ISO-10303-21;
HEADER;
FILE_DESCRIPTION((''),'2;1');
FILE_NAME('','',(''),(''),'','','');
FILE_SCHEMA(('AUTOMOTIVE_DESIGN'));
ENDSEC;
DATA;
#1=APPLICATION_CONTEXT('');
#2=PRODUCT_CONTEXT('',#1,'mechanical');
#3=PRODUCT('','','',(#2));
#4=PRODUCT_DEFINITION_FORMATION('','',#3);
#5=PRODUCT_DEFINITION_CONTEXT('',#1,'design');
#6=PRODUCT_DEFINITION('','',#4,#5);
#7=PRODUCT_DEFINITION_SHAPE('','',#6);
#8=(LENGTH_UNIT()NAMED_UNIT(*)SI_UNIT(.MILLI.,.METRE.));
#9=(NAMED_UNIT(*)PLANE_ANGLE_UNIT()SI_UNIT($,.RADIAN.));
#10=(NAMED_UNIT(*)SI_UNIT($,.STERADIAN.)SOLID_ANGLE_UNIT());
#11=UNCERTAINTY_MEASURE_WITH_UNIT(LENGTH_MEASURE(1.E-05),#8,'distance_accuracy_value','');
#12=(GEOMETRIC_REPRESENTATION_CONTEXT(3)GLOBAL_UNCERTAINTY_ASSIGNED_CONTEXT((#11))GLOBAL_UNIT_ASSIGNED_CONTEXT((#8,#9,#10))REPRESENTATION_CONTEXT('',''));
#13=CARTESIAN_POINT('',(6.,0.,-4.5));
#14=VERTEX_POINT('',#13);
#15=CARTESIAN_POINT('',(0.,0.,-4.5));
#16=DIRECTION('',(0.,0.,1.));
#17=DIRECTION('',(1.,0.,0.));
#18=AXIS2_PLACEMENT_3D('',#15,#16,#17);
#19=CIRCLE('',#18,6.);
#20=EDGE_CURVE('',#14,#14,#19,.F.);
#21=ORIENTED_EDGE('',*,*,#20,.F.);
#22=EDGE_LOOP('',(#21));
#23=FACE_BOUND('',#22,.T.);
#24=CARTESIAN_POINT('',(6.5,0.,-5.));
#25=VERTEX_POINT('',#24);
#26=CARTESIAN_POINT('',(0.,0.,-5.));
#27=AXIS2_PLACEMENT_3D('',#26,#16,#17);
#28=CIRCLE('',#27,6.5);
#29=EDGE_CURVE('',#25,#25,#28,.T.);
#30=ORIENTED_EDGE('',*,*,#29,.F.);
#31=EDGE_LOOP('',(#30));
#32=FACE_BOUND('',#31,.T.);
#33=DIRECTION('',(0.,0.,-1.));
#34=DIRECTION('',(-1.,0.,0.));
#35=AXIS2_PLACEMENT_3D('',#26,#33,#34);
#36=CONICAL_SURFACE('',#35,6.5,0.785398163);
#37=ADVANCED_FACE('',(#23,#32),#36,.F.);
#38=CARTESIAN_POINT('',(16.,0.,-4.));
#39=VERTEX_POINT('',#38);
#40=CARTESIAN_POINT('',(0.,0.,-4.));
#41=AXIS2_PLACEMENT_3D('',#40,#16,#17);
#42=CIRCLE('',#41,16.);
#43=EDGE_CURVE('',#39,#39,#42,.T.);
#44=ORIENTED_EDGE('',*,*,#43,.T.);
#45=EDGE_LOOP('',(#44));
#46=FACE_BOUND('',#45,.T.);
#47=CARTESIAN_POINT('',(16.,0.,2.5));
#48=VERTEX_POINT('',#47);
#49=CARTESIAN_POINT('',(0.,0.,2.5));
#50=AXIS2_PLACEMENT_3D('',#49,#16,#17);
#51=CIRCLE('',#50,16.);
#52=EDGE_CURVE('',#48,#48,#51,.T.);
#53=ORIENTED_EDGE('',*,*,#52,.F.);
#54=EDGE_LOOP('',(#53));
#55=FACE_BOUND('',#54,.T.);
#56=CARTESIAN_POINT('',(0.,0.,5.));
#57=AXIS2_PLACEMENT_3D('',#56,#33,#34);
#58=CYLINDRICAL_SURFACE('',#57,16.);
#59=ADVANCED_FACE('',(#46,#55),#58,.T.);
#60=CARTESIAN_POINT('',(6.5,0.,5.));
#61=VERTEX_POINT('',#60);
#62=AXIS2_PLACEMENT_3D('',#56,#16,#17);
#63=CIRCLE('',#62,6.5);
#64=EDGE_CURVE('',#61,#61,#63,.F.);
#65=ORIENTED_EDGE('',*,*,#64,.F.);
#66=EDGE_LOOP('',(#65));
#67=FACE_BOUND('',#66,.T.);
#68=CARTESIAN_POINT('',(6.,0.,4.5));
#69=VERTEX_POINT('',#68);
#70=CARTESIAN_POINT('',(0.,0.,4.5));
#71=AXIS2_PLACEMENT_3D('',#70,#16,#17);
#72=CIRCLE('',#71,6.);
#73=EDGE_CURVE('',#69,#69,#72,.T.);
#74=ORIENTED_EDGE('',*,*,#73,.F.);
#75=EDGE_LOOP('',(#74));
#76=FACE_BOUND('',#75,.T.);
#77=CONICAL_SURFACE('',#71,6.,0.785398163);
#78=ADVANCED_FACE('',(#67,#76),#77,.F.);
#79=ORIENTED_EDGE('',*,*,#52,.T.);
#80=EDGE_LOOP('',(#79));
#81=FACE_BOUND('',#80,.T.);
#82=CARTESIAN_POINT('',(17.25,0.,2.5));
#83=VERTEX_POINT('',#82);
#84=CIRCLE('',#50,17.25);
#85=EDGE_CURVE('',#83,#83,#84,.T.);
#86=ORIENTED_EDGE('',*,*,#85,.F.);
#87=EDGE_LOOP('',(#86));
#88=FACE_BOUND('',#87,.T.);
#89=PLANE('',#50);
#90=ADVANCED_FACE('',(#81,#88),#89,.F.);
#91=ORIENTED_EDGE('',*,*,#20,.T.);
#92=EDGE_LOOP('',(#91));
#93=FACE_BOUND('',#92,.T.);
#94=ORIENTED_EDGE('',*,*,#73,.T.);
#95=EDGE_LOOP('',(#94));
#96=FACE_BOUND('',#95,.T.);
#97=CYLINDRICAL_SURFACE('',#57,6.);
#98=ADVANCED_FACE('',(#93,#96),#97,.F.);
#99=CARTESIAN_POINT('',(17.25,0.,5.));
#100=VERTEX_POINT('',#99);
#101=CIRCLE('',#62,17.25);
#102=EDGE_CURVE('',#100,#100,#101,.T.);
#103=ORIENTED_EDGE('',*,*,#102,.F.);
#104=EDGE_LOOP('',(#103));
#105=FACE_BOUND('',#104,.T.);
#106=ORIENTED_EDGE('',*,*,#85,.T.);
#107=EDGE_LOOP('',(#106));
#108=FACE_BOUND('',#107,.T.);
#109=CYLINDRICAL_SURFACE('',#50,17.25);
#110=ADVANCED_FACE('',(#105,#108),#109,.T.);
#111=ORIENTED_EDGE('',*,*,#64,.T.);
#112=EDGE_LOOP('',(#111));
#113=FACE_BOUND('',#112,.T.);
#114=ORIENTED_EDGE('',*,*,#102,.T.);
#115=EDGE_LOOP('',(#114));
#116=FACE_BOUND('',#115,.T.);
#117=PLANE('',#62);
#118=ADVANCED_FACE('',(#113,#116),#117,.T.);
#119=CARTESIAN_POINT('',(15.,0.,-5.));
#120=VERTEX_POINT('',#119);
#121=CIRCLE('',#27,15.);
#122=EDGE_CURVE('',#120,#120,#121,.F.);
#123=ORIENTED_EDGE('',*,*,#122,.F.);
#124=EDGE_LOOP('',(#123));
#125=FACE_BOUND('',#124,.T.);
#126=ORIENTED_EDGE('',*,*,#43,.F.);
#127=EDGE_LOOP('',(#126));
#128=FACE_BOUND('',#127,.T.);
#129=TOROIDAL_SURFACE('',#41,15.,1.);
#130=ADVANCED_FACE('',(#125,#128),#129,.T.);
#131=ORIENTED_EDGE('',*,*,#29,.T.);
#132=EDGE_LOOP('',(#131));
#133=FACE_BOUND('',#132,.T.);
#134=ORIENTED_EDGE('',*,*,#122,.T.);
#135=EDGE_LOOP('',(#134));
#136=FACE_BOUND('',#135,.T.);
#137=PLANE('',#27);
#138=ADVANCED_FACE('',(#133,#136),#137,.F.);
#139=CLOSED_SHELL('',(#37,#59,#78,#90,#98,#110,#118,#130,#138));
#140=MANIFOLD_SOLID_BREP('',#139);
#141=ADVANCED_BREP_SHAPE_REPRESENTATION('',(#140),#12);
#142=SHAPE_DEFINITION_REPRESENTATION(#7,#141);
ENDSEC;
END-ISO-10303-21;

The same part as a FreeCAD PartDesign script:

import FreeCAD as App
import Part
import Sketcher
from FreeCAD import Vector
Q = App.Units.Quantity


def edges_at(feature, points):
    """Names of the edges that pass closest to the given points."""
    edges = feature.Shape.Edges
    near = lambda p: min(range(len(edges)), key=lambda i: edges[i].distToShape(Part.Vertex(*p))[0])
    return sorted({f"Edge{near(p) + 1}" for p in points})

doc = App.newDocument("Part")
body = doc.addObject("PartDesign::Body", "Body")

# Sketch on XY plane
sketch1 = doc.addObject("Sketcher::SketchObject", "Sketch")
body.addObject(sketch1)
sketch1.AttachmentSupport = (doc.XY_Plane, [""])
sketch1.MapMode = "FlatFace"
sketch1.addGeometry([
    Part.Circle(Vector(0, 0, 0), Vector(0, 0, 1), 16),
    Part.Circle(Vector(0, 0, 0), Vector(0, 0, 1), 6),
], False)
sketch1.addConstraint([
    Sketcher.Constraint("Coincident", 0, 3, -1, 1),
    Sketcher.Constraint("Coincident", 1, 3, -1, 1),
    Sketcher.Constraint("Diameter", 0, Q("32 mm")),
    Sketcher.Constraint("Diameter", 1, Q("12 mm")),
])
pad1 = doc.addObject("PartDesign::Pad", "Pad")
body.addObject(pad1)
pad1.Profile = sketch1
pad1.Length = 10
pad1.Midplane = True

# Sketch on XY plane
sketch2 = doc.addObject("Sketcher::SketchObject", "Sketch001")
body.addObject(sketch2)
sketch2.AttachmentSupport = (doc.XY_Plane, [""])
sketch2.MapMode = "FlatFace"
sketch2.AttachmentOffset = App.Placement(Vector(0, 0, 5), App.Rotation())
sketch2.addGeometry([
    Part.Circle(Vector(0, 0, 0), Vector(0, 0, 1), 17),
    Part.Circle(Vector(0, 0, 0), Vector(0, 0, 1), 16),
], False)
sketch2.addConstraint([
    Sketcher.Constraint("Coincident", 0, 3, -1, 1),
    Sketcher.Constraint("Coincident", 1, 3, -1, 1),
    Sketcher.Constraint("Diameter", 1, Q("32 mm")),
    Sketcher.Constraint("Diameter", 0, Q("34.5 mm")),
])
pad2 = doc.addObject("PartDesign::Pad", "Pad001")
body.addObject(pad2)
pad2.Profile = sketch2
pad2.Length = 2.5
pad2.Reversed = True
doc.recompute()

chamfer = doc.addObject("PartDesign::Chamfer", "Chamfer")
body.addObject(chamfer)
chamfer.Base = (pad2, edges_at(pad2, [(-6, 0, -5), (-6, 0, 5)]))
chamfer.Size = 0.5
doc.recompute()

fillet = doc.addObject("PartDesign::Fillet", "Fillet")
body.addObject(fillet)
fillet.Base = (chamfer, edges_at(chamfer, [(-16, 0, -5)]))
fillet.Radius = 1

doc.recompute()
